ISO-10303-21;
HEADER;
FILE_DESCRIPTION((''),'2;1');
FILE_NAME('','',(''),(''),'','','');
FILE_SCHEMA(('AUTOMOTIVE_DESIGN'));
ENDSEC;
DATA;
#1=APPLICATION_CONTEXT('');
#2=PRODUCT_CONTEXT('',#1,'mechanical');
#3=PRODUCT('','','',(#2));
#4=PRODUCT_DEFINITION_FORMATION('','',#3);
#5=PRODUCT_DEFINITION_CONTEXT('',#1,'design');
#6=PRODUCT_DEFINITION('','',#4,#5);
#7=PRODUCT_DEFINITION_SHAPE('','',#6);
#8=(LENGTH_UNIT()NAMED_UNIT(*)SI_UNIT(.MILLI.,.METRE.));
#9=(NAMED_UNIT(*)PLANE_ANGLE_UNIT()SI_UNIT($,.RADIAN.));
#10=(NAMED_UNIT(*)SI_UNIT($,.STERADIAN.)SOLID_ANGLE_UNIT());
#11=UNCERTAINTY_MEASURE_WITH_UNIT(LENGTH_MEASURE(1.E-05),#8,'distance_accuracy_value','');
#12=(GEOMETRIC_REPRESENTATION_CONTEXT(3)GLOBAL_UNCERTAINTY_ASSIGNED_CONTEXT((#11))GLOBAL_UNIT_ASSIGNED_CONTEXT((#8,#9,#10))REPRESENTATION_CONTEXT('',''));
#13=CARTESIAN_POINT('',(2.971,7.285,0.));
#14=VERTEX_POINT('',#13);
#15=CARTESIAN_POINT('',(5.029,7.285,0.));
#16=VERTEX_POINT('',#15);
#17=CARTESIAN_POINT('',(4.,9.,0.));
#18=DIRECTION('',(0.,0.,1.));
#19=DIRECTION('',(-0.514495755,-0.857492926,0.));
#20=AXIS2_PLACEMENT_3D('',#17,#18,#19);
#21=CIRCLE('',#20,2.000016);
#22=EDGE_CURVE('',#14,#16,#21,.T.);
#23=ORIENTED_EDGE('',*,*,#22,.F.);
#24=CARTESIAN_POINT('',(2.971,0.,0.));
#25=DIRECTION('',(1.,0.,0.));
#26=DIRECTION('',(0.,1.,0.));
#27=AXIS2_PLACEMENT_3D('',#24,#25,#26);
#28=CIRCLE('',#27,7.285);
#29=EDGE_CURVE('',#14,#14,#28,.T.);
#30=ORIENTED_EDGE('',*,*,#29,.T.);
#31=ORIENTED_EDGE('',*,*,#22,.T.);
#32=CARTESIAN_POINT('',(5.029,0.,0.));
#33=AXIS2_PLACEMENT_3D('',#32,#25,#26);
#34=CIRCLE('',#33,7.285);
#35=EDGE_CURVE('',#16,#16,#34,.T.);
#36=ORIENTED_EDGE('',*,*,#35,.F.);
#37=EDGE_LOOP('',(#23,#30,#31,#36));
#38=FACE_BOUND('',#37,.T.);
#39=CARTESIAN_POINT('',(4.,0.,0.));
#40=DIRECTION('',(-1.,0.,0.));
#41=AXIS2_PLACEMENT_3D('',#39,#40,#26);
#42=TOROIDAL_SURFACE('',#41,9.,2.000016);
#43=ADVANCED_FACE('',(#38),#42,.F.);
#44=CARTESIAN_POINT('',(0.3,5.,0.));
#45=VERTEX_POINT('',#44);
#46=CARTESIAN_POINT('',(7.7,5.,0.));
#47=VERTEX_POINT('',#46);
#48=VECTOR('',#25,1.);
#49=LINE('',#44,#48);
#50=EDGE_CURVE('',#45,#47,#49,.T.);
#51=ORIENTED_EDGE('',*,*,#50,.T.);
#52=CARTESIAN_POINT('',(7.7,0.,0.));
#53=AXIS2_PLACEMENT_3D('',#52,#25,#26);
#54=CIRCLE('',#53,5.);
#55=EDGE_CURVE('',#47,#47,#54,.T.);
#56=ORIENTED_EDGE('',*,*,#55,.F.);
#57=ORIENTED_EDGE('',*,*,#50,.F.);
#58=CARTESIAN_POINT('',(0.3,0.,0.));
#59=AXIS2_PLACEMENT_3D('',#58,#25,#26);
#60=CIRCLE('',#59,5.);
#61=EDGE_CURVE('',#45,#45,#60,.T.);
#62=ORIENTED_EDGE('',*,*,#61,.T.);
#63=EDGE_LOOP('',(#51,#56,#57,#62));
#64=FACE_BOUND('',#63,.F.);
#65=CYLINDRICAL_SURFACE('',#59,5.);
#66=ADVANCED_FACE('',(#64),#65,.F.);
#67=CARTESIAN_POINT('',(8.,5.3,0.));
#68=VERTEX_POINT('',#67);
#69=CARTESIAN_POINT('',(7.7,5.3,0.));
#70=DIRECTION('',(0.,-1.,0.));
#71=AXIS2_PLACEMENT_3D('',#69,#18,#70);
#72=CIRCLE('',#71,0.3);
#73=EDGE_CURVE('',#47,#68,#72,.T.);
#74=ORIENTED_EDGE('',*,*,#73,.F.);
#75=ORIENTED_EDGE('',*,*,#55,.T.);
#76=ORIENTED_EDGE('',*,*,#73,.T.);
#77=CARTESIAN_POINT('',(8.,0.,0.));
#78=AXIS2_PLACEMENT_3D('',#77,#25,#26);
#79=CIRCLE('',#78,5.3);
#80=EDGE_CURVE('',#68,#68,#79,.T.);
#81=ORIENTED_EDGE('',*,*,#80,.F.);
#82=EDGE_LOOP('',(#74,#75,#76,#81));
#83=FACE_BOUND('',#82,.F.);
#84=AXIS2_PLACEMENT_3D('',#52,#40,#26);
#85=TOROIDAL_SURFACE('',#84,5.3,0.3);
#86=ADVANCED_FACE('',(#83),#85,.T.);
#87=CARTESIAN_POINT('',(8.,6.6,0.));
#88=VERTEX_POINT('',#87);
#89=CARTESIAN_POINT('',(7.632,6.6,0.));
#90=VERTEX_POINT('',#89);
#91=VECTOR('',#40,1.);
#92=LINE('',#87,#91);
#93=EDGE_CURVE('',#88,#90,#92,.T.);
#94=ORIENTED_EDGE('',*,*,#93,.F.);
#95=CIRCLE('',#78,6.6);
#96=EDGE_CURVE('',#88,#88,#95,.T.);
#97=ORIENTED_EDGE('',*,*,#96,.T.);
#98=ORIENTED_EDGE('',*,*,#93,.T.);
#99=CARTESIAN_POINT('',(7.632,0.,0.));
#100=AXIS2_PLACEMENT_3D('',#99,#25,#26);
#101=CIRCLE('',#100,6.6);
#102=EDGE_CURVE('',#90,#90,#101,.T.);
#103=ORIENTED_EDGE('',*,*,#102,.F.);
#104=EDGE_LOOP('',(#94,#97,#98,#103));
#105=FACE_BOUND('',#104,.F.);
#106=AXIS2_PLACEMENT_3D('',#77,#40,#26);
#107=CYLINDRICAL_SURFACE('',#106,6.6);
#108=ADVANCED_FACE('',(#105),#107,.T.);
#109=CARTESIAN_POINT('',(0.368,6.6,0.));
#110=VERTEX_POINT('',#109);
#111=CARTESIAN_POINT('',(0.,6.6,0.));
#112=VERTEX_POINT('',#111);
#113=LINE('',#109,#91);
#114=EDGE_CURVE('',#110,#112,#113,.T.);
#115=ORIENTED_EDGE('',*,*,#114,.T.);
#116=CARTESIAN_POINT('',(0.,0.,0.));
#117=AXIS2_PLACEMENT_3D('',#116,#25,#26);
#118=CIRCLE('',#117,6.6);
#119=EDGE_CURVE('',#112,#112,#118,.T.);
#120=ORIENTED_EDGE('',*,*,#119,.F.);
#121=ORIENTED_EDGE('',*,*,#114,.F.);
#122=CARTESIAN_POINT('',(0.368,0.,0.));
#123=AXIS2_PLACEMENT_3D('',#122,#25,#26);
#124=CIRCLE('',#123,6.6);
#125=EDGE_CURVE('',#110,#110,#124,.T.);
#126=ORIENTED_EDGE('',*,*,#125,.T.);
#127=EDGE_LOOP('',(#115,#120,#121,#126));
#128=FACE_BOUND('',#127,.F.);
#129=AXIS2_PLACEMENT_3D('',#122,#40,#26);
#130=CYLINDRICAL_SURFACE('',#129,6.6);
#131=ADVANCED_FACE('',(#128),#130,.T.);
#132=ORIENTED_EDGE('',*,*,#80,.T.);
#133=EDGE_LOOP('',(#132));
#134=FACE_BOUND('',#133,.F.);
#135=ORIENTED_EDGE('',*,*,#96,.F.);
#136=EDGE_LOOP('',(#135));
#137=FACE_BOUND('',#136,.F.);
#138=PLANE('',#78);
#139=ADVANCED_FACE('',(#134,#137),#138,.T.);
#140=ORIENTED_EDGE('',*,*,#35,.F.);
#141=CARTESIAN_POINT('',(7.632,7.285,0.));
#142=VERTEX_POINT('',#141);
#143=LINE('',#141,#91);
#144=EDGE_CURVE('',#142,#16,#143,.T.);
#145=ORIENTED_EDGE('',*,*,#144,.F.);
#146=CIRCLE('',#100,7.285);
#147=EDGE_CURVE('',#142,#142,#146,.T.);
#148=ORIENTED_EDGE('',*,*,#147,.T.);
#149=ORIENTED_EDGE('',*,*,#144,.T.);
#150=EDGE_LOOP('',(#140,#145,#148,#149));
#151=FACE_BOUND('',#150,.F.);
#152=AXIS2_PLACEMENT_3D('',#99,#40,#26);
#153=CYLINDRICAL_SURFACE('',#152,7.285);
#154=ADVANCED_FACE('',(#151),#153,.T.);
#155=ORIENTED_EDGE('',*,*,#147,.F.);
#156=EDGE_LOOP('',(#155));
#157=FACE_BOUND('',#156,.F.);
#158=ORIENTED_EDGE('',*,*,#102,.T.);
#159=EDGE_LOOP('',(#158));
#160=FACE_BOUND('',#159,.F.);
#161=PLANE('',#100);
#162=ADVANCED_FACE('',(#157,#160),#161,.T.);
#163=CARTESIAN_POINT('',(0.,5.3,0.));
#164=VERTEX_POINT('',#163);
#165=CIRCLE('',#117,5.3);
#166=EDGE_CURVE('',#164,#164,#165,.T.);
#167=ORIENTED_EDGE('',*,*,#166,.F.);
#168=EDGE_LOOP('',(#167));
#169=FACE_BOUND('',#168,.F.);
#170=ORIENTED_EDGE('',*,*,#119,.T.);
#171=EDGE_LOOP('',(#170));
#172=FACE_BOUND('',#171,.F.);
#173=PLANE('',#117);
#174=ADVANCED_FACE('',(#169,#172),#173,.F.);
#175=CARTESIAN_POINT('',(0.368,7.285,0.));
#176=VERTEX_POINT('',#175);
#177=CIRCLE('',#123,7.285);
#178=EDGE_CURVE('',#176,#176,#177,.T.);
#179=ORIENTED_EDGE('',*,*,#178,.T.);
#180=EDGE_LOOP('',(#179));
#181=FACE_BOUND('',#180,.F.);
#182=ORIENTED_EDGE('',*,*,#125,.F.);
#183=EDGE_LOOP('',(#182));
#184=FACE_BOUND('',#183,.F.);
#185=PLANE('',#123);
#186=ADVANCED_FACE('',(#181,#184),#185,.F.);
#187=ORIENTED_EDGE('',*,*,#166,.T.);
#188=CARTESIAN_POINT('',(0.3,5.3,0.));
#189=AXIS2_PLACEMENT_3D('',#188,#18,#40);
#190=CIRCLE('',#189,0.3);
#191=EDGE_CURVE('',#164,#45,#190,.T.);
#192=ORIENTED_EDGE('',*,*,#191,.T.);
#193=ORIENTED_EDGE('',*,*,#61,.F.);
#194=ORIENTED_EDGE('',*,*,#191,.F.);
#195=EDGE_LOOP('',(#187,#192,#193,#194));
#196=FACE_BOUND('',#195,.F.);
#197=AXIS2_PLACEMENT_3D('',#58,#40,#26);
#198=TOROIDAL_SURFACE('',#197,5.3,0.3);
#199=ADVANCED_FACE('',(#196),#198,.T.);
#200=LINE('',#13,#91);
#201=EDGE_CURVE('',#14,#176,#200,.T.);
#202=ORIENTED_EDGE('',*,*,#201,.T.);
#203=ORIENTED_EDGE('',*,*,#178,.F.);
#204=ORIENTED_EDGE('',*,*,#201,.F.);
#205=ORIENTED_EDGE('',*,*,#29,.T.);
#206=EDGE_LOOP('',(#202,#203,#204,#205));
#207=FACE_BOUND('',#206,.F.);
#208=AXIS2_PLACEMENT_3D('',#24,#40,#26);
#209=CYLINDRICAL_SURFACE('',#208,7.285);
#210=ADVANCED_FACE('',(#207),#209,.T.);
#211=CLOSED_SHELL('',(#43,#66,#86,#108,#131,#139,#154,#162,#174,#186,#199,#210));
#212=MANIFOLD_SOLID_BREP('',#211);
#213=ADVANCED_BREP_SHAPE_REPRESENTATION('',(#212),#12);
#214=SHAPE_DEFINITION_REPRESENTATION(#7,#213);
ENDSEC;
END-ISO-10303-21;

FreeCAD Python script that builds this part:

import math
import FreeCAD as App
import Part
import Sketcher

doc = App.newDocument("Part")
params = doc.addObject("Spreadsheet::Sheet", "Params")
for row, (alias, value) in enumerate([
    ("sketch1_radius", "2 mm"),
    ("sketch1_radius2", "0.3 mm"),
    ("sketch1_width", "7.4 mm"),
    ("sketch1_height", "1.3 mm"),
    ("revolution_angle", "360 deg"),
], start=1):
    params.set(f"A{row}", alias)
    params.set(f"B{row}", "=" + value)
    params.setAlias(f"B{row}", alias)

body = doc.addObject("PartDesign::Body", "Body")

# Sketch on XY plane
sketch1 = body.newObject("Sketcher::SketchObject", "Sketch")
sketch1.AttachmentSupport = (doc.getObject("XY_Plane"), [""])
sketch1.MapMode = "FlatFace"
sketch1.addGeometry(Part.LineSegment(App.Vector(0, 6.6, 0), App.Vector(0, 5.3, 0)), False)
sketch1.addGeometry(Part.ArcOfCircle(Part.Circle(App.Vector(0.3, 5.3, 0), App.Vector(0, 0, 1), 0.3), math.radians(180), math.radians(270)), False)
sketch1.addGeometry(Part.LineSegment(App.Vector(0.3, 5, 0), App.Vector(7.7, 5, 0)), False)
sketch1.addGeometry(Part.ArcOfCircle(Part.Circle(App.Vector(7.7, 5.3, 0), App.Vector(0, 0, 1), 0.3), math.radians(-90), math.radians(0)), False)
sketch1.addGeometry(Part.LineSegment(App.Vector(8, 5.3, 0), App.Vector(8, 6.6, 0)), False)
sketch1.addGeometry(Part.LineSegment(App.Vector(8, 6.6, 0), App.Vector(7.63, 6.6, 0)), False)
sketch1.addGeometry(Part.LineSegment(App.Vector(7.63, 6.6, 0), App.Vector(7.63, 7.29, 0)), False)
sketch1.addGeometry(Part.LineSegment(App.Vector(7.63, 7.29, 0), App.Vector(5.03, 7.29, 0)), False)
sketch1.addGeometry(Part.ArcOfCircle(Part.Circle(App.Vector(4, 9, 0), App.Vector(0, 0, 1), 2), math.radians(-121), math.radians(-59)), False)
sketch1.addGeometry(Part.LineSegment(App.Vector(2.97, 7.29, 0), App.Vector(0.37, 7.29, 0)), False)
sketch1.addGeometry(Part.LineSegment(App.Vector(0.37, 7.29, 0), App.Vector(0.37, 6.6, 0)), False)
sketch1.addGeometry(Part.LineSegment(App.Vector(0.37, 6.6, 0), App.Vector(0, 6.6, 0)), False)
sketch1.addConstraint(Sketcher.Constraint("Tangent", 0, 2, 1, 1))
sketch1.addConstraint(Sketcher.Constraint("Tangent", 1, 2, 2, 1))
sketch1.addConstraint(Sketcher.Constraint("Tangent", 2, 2, 3, 1))
sketch1.addConstraint(Sketcher.Constraint("Tangent", 3, 2, 4, 1))
sketch1.addConstraint(Sketcher.Constraint("Coincident", 4, 2, 5, 1))
sketch1.addConstraint(Sketcher.Constraint("Coincident", 5, 2, 6, 1))
sketch1.addConstraint(Sketcher.Constraint("Coincident", 6, 2, 7, 1))
sketch1.addConstraint(Sketcher.Constraint("Coincident", 7, 2, 8, 2))
sketch1.addConstraint(Sketcher.Constraint("Coincident", 8, 1, 9, 1))
sketch1.addConstraint(Sketcher.Constraint("Coincident", 9, 2, 10, 1))
sketch1.addConstraint(Sketcher.Constraint("Coincident", 10, 2, 11, 1))
sketch1.addConstraint(Sketcher.Constraint("Coincident", 11, 2, 0, 1))
sketch1.addConstraint(Sketcher.Constraint("Vertical", 0))
sketch1.addConstraint(Sketcher.Constraint("Horizontal", 2))
sketch1.addConstraint(Sketcher.Constraint("Vertical", 4))
sketch1.addConstraint(Sketcher.Constraint("Horizontal", 5))
sketch1.addConstraint(Sketcher.Constraint("Vertical", 6))
sketch1.addConstraint(Sketcher.Constraint("Horizontal", 7))
sketch1.addConstraint(Sketcher.Constraint("Horizontal", 9))
sketch1.addConstraint(Sketcher.Constraint("Vertical", 10))
sketch1.addConstraint(Sketcher.Constraint("Horizontal", 11))
sketch1.addConstraint(Sketcher.Constraint("Equal", 1, 3))
sketch1.addConstraint(Sketcher.Constraint("PointOnObject", 0, 2, -2))
sketch1.addConstraint(Sketcher.Constraint("Horizontal", 7, 2, 8, 1))
sketch1.addConstraint(Sketcher.Constraint("Horizontal", 5, 2, 10, 2))
sketch1.addConstraint(Sketcher.Constraint("Equal", 7, 9))
sketch1.addConstraint(Sketcher.Constraint("Equal", 5, 11))
sketch1.addConstraint(Sketcher.Constraint("Radius", 8, 2.0))
sketch1.addConstraint(Sketcher.Constraint("Radius", 1, 0.3))
sketch1.addConstraint(Sketcher.Constraint("DistanceX", 2, 1, 2, 2, 7.4))
sketch1.addConstraint(Sketcher.Constraint("DistanceY", 0, 2, 0, 1, 1.3))
sketch1.addConstraint(Sketcher.Constraint("DistanceY", -1, 1, 8, 3, 9.0))
sketch1.addConstraint(Sketcher.Constraint("DistanceY", -1, 1, 1, 2, 5.0))
sketch1.addConstraint(Sketcher.Constraint("DistanceX", 5, 2, 5, 1, 0.368))
sketch1.addConstraint(Sketcher.Constraint("DistanceX", 7, 2, 7, 1, 2.603))
sketch1.setExpression("Constraints[27]", "Params.sketch1_radius")
sketch1.setExpression("Constraints[28]", "Params.sketch1_radius2")
sketch1.setExpression("Constraints[29]", "Params.sketch1_width")
sketch1.setExpression("Constraints[30]", "Params.sketch1_height")
revolution = body.newObject("PartDesign::Revolution", "Revolution")
revolution.Profile = sketch1
revolution.ReferenceAxis = (sketch1, ["H_Axis"])
revolution.setExpression("Angle", "Params.revolution_angle")

doc.recompute()
